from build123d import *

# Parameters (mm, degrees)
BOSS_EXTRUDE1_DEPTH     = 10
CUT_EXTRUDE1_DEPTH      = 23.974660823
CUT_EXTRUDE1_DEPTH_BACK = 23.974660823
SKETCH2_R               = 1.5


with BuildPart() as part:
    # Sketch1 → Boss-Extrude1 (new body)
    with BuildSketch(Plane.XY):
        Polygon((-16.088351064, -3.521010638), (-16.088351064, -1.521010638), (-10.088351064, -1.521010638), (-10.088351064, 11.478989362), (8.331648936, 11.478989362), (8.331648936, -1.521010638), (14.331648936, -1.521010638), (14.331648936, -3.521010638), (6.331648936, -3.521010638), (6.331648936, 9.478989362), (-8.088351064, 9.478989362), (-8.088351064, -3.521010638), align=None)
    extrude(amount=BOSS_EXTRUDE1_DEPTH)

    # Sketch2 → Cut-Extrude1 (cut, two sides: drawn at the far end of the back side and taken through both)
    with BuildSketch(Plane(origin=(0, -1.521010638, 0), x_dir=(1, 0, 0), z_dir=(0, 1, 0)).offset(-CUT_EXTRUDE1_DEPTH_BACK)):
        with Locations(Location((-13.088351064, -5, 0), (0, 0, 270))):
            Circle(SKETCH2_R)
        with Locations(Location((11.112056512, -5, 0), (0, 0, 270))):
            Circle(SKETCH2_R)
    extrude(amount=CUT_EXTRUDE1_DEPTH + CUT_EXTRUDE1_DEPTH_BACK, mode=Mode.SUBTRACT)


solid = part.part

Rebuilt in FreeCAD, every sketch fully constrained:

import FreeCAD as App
import Part
import Sketcher
from FreeCAD import Vector
Q = App.Units.Quantity

doc = App.newDocument("Part")
body = doc.addObject("PartDesign::Body", "Body")

sketch1 = body.newObject("Sketcher::SketchObject", "Sketch")
sketch1.AttachmentSupport = (doc.getObject("XY_Plane"), [""])
sketch1.MapMode = "FlatFace"
sketch1.addGeometry(Part.LineSegment(Vector(-16.088351, -1.521011, 0), Vector(-16.088351, -3.521011, 0)), False)
sketch1.addGeometry(Part.LineSegment(Vector(-16.088351, -3.521011, 0), Vector(-8.088351, -3.521011, 0)), False)
sketch1.addGeometry(Part.LineSegment(Vector(-8.088351, -3.521011, 0), Vector(-8.088351, 9.478989, 0)), False)
sketch1.addGeometry(Part.LineSegment(Vector(-8.088351, 9.478989, 0), Vector(6.331649, 9.478989, 0)), False)
sketch1.addGeometry(Part.LineSegment(Vector(6.331649, 9.478989, 0), Vector(6.331649, -3.521011, 0)), False)
sketch1.addGeometry(Part.LineSegment(Vector(6.331649, -3.521011, 0), Vector(14.331649, -3.521011, 0)), False)
sketch1.addGeometry(Part.LineSegment(Vector(14.331649, -3.521011, 0), Vector(14.331649, -1.521011, 0)), False)
sketch1.addGeometry(Part.LineSegment(Vector(14.331649, -1.521011, 0), Vector(8.331649, -1.521011, 0)), False)
sketch1.addGeometry(Part.LineSegment(Vector(8.331649, -1.521011, 0), Vector(8.331649, 11.478989, 0)), False)
sketch1.addGeometry(Part.LineSegment(Vector(8.331649, 11.478989, 0), Vector(-10.088351, 11.478989, 0)), False)
sketch1.addGeometry(Part.LineSegment(Vector(-10.088351, 11.478989, 0), Vector(-10.088351, -1.521011, 0)), False)
sketch1.addGeometry(Part.LineSegment(Vector(-10.088351, -1.521011, 0), Vector(-16.088351, -1.521011, 0)), False)
sketch1.addConstraint(Sketcher.Constraint("Coincident", 0, 2, 1, 1))
sketch1.addConstraint(Sketcher.Constraint("Coincident", 1, 2, 2, 1))
sketch1.addConstraint(Sketcher.Constraint("Coincident", 2, 2, 3, 1))
sketch1.addConstraint(Sketcher.Constraint("Coincident", 3, 2, 4, 1))
sketch1.addConstraint(Sketcher.Constraint("Coincident", 4, 2, 5, 1))
sketch1.addConstraint(Sketcher.Constraint("Coincident", 5, 2, 6, 1))
sketch1.addConstraint(Sketcher.Constraint("Coincident", 6, 2, 7, 1))
sketch1.addConstraint(Sketcher.Constraint("Coincident", 7, 2, 8, 1))
sketch1.addConstraint(Sketcher.Constraint("Coincident", 8, 2, 9, 1))
sketch1.addConstraint(Sketcher.Constraint("Coincident", 9, 2, 10, 1))
sketch1.addConstraint(Sketcher.Constraint("Coincident", 10, 2, 11, 1))
sketch1.addConstraint(Sketcher.Constraint("Coincident", 11, 2, 0, 1))
sketch1.addConstraint(Sketcher.Constraint("Vertical", 0))
sketch1.addConstraint(Sketcher.Constraint("Horizontal", 1))
sketch1.addConstraint(Sketcher.Constraint("Vertical", 2))
sketch1.addConstraint(Sketcher.Constraint("Horizontal", 3))
sketch1.addConstraint(Sketcher.Constraint("Vertical", 4))
sketch1.addConstraint(Sketcher.Constraint("Horizontal", 5))
sketch1.addConstraint(Sketcher.Constraint("Vertical", 6))
sketch1.addConstraint(Sketcher.Constraint("Horizontal", 7))
sketch1.addConstraint(Sketcher.Constraint("Vertical", 8))
sketch1.addConstraint(Sketcher.Constraint("Horizontal", 9))
sketch1.addConstraint(Sketcher.Constraint("Vertical", 10))
sketch1.addConstraint(Sketcher.Constraint("Horizontal", 11))
sketch1.addConstraint(Sketcher.Constraint("Horizontal", 1, 2, 4, 2))
sketch1.addConstraint(Sketcher.Constraint("Horizontal", 7, 2, 10, 2))
sketch1.addConstraint(Sketcher.Constraint("Equal", 1, 5))
sketch1.addConstraint(Sketcher.Constraint("Equal", 7, 11))
sketch1.addConstraint(Sketcher.Constraint("Equal", 4, 8))
sketch1.addConstraint(Sketcher.Constraint("DistanceX", 1, 1, 1, 2, Q("8 mm")))
sketch1.addConstraint(Sketcher.Constraint("DistanceX", 7, 2, 7, 1, Q("6 mm")))
sketch1.addConstraint(Sketcher.Constraint("DistanceY", 0, 2, 0, 1, Q("2 mm")))
sketch1.addConstraint(Sketcher.Constraint("DistanceY", 2, 1, 2, 2, Q("13 mm")))
sketch1.addConstraint(Sketcher.Constraint("DistanceX", 3, 1, 3, 2, Q("14.42 mm")))
sketch1.addConstraint(Sketcher.Constraint("DistanceX", 0, 2, -1, 1, Q("16.088351 mm")))
sketch1.addConstraint(Sketcher.Constraint("DistanceY", 0, 2, -1, 1, Q("3.521011 mm")))
pad1 = body.newObject("PartDesign::Pad", "Pad")
pad1.Profile = sketch1
pad1.Length = 10

sketch2 = body.newObject("Sketcher::SketchObject", "Sketch001")
sketch2.AttachmentSupport = (doc.getObject("XZ_Plane"), [""])
sketch2.MapMode = "FlatFace"
sketch2.AttachmentOffset = App.Placement(Vector(0, 0, 1.521011), App.Rotation())
sketch2.addGeometry(Part.Circle(Vector(-13.088351, 5, 0), Vector(0, 0, 1), 1.5), False)
sketch2.addGeometry(Part.Circle(Vector(11.112057, 5, 0), Vector(0, 0, 1), 1.5), False)
sketch2.addConstraint(Sketcher.Constraint("Equal", 0, 1))
sketch2.addConstraint(Sketcher.Constraint("Horizontal", 0, 3, 1, 3))
sketch2.addConstraint(Sketcher.Constraint("Diameter", 0, Q("3 mm")))
sketch2.addConstraint(Sketcher.Constraint("DistanceY", -1, 1, 0, 3, Q("5 mm")))
sketch2.addConstraint(Sketcher.Constraint("DistanceX", 0, 3, -1, 1, Q("13.088351 mm")))
sketch2.addConstraint(Sketcher.Constraint("DistanceX", -1, 1, 1, 3, Q("11.112057 mm")))
pocket1 = body.newObject("PartDesign::Pocket", "Pocket")
pocket1.Profile = sketch2
pocket1.Type = "ThroughAll"
pocket1.Midplane = True

doc.recompute()
